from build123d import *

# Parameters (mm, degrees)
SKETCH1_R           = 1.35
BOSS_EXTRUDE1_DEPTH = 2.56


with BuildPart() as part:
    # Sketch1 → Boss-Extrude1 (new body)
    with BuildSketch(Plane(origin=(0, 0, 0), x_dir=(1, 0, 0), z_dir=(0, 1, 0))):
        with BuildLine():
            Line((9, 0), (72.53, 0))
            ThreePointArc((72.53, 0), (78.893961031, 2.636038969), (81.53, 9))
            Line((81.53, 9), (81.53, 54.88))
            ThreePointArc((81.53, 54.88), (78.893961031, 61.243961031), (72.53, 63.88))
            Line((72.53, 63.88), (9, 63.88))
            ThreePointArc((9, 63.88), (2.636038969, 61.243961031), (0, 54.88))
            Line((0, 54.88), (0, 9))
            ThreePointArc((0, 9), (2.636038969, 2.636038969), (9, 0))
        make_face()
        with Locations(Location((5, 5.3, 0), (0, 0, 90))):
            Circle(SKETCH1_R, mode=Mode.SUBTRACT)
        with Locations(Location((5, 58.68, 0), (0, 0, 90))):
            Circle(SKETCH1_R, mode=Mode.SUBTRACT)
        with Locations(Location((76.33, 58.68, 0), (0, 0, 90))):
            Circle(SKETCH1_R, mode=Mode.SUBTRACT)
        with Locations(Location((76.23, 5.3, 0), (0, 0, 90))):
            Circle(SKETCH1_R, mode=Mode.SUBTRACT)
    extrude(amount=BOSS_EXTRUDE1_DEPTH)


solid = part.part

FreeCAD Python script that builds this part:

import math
import FreeCAD as App
import Part
import Sketcher
from FreeCAD import Vector
Q = App.Units.Quantity

doc = App.newDocument("Part")
body = doc.addObject("PartDesign::Body", "Body")

sketch1 = body.newObject("Sketcher::SketchObject", "Sketch")
sketch1.AttachmentSupport = (doc.getObject("XZ_Plane"), [""])
sketch1.MapMode = "FlatFace"
sketch1.addGeometry([
    Part.LineSegment(Vector(9, 0, 0), Vector(72.5, 0, 0)),
    Part.ArcOfCircle(Part.Circle(Vector(72.5, -9, 0), Vector(0, 0, 1), 9), math.radians(0), math.radians(90)),
    Part.LineSegment(Vector(81.5, -9, 0), Vector(81.5, -54.9, 0)),
    Part.ArcOfCircle(Part.Circle(Vector(72.5, -54.9, 0), Vector(0, 0, 1), 9), math.radians(-90), math.radians(0)),
    Part.LineSegment(Vector(72.5, -63.9, 0), Vector(9, -63.9, 0)),
    Part.ArcOfCircle(Part.Circle(Vector(9, -54.9, 0), Vector(0, 0, 1), 9), math.radians(180), math.radians(270)),
    Part.LineSegment(Vector(0, -54.9, 0), Vector(0, -9, 0)),
    Part.ArcOfCircle(Part.Circle(Vector(9, -9, 0), Vector(0, 0, 1), 9), math.radians(90), math.radians(180)),
    Part.Circle(Vector(5, -5.3, 0), Vector(0, 0, 1), 1.4),
    Part.Circle(Vector(76.2, -5.3, 0), Vector(0, 0, 1), 1.4),
    Part.Circle(Vector(5, -58.7, 0), Vector(0, 0, 1), 1.4),
    Part.Circle(Vector(76.3, -58.7, 0), Vector(0, 0, 1), 1.4),
], False)
sketch1.addConstraint([
    Sketcher.Constraint("Tangent", 0, 2, 1, 2),
    Sketcher.Constraint("Tangent", 1, 1, 2, 1),
    Sketcher.Constraint("Tangent", 2, 2, 3, 2),
    Sketcher.Constraint("Tangent", 3, 1, 4, 1),
    Sketcher.Constraint("Tangent", 4, 2, 5, 2),
    Sketcher.Constraint("Tangent", 5, 1, 6, 1),
    Sketcher.Constraint("Tangent", 6, 2, 7, 2),
    Sketcher.Constraint("Tangent", 7, 1, 0, 1),
    Sketcher.Constraint("Horizontal", 0),
    Sketcher.Constraint("Vertical", 2),
    Sketcher.Constraint("Horizontal", 4),
    Sketcher.Constraint("Vertical", 6),
    Sketcher.Constraint("Equal", 1, 3),
    Sketcher.Constraint("Equal", 3, 5),
    Sketcher.Constraint("Equal", 5, 7),
    Sketcher.Constraint("Equal", 8, 9),
    Sketcher.Constraint("Equal", 9, 10),
    Sketcher.Constraint("Equal", 10, 11),
    Sketcher.Constraint("PointOnObject", 0, 2, -1),
    Sketcher.Constraint("PointOnObject", 5, 1, -2),
    Sketcher.Constraint("Horizontal", 8, 3, 9, 3),
    Sketcher.Constraint("Horizontal", 10, 3, 11, 3),
    Sketcher.Constraint("Vertical", 8, 3, 10, 3),
    Sketcher.Constraint("Radius", 1, Q("9 mm")),
    Sketcher.Constraint("Diameter", 8, Q("2.7 mm")),
    Sketcher.Constraint("DistanceX", -1, 1, 8, 3, Q("5 mm")),
    Sketcher.Constraint("DistanceX", 0, 1, 0, 2, Q("63.53 mm")),
    Sketcher.Constraint("DistanceY", 2, 2, 2, 1, Q("45.88 mm")),
    Sketcher.Constraint("DistanceY", 8, 3, -1, 1, Q("5.3 mm")),
    Sketcher.Constraint("DistanceX", 1, 3, 9, 3, Q("3.7 mm")),
    Sketcher.Constraint("DistanceY", 10, 3, 5, 3, Q("3.8 mm")),
    Sketcher.Constraint("DistanceX", 3, 3, 11, 3, Q("3.8 mm")),
])
pad1 = body.newObject("PartDesign::Pad", "Pad")
pad1.Profile = sketch1
pad1.Length = 2.56
pad1.Reversed = True

doc.recompute()
